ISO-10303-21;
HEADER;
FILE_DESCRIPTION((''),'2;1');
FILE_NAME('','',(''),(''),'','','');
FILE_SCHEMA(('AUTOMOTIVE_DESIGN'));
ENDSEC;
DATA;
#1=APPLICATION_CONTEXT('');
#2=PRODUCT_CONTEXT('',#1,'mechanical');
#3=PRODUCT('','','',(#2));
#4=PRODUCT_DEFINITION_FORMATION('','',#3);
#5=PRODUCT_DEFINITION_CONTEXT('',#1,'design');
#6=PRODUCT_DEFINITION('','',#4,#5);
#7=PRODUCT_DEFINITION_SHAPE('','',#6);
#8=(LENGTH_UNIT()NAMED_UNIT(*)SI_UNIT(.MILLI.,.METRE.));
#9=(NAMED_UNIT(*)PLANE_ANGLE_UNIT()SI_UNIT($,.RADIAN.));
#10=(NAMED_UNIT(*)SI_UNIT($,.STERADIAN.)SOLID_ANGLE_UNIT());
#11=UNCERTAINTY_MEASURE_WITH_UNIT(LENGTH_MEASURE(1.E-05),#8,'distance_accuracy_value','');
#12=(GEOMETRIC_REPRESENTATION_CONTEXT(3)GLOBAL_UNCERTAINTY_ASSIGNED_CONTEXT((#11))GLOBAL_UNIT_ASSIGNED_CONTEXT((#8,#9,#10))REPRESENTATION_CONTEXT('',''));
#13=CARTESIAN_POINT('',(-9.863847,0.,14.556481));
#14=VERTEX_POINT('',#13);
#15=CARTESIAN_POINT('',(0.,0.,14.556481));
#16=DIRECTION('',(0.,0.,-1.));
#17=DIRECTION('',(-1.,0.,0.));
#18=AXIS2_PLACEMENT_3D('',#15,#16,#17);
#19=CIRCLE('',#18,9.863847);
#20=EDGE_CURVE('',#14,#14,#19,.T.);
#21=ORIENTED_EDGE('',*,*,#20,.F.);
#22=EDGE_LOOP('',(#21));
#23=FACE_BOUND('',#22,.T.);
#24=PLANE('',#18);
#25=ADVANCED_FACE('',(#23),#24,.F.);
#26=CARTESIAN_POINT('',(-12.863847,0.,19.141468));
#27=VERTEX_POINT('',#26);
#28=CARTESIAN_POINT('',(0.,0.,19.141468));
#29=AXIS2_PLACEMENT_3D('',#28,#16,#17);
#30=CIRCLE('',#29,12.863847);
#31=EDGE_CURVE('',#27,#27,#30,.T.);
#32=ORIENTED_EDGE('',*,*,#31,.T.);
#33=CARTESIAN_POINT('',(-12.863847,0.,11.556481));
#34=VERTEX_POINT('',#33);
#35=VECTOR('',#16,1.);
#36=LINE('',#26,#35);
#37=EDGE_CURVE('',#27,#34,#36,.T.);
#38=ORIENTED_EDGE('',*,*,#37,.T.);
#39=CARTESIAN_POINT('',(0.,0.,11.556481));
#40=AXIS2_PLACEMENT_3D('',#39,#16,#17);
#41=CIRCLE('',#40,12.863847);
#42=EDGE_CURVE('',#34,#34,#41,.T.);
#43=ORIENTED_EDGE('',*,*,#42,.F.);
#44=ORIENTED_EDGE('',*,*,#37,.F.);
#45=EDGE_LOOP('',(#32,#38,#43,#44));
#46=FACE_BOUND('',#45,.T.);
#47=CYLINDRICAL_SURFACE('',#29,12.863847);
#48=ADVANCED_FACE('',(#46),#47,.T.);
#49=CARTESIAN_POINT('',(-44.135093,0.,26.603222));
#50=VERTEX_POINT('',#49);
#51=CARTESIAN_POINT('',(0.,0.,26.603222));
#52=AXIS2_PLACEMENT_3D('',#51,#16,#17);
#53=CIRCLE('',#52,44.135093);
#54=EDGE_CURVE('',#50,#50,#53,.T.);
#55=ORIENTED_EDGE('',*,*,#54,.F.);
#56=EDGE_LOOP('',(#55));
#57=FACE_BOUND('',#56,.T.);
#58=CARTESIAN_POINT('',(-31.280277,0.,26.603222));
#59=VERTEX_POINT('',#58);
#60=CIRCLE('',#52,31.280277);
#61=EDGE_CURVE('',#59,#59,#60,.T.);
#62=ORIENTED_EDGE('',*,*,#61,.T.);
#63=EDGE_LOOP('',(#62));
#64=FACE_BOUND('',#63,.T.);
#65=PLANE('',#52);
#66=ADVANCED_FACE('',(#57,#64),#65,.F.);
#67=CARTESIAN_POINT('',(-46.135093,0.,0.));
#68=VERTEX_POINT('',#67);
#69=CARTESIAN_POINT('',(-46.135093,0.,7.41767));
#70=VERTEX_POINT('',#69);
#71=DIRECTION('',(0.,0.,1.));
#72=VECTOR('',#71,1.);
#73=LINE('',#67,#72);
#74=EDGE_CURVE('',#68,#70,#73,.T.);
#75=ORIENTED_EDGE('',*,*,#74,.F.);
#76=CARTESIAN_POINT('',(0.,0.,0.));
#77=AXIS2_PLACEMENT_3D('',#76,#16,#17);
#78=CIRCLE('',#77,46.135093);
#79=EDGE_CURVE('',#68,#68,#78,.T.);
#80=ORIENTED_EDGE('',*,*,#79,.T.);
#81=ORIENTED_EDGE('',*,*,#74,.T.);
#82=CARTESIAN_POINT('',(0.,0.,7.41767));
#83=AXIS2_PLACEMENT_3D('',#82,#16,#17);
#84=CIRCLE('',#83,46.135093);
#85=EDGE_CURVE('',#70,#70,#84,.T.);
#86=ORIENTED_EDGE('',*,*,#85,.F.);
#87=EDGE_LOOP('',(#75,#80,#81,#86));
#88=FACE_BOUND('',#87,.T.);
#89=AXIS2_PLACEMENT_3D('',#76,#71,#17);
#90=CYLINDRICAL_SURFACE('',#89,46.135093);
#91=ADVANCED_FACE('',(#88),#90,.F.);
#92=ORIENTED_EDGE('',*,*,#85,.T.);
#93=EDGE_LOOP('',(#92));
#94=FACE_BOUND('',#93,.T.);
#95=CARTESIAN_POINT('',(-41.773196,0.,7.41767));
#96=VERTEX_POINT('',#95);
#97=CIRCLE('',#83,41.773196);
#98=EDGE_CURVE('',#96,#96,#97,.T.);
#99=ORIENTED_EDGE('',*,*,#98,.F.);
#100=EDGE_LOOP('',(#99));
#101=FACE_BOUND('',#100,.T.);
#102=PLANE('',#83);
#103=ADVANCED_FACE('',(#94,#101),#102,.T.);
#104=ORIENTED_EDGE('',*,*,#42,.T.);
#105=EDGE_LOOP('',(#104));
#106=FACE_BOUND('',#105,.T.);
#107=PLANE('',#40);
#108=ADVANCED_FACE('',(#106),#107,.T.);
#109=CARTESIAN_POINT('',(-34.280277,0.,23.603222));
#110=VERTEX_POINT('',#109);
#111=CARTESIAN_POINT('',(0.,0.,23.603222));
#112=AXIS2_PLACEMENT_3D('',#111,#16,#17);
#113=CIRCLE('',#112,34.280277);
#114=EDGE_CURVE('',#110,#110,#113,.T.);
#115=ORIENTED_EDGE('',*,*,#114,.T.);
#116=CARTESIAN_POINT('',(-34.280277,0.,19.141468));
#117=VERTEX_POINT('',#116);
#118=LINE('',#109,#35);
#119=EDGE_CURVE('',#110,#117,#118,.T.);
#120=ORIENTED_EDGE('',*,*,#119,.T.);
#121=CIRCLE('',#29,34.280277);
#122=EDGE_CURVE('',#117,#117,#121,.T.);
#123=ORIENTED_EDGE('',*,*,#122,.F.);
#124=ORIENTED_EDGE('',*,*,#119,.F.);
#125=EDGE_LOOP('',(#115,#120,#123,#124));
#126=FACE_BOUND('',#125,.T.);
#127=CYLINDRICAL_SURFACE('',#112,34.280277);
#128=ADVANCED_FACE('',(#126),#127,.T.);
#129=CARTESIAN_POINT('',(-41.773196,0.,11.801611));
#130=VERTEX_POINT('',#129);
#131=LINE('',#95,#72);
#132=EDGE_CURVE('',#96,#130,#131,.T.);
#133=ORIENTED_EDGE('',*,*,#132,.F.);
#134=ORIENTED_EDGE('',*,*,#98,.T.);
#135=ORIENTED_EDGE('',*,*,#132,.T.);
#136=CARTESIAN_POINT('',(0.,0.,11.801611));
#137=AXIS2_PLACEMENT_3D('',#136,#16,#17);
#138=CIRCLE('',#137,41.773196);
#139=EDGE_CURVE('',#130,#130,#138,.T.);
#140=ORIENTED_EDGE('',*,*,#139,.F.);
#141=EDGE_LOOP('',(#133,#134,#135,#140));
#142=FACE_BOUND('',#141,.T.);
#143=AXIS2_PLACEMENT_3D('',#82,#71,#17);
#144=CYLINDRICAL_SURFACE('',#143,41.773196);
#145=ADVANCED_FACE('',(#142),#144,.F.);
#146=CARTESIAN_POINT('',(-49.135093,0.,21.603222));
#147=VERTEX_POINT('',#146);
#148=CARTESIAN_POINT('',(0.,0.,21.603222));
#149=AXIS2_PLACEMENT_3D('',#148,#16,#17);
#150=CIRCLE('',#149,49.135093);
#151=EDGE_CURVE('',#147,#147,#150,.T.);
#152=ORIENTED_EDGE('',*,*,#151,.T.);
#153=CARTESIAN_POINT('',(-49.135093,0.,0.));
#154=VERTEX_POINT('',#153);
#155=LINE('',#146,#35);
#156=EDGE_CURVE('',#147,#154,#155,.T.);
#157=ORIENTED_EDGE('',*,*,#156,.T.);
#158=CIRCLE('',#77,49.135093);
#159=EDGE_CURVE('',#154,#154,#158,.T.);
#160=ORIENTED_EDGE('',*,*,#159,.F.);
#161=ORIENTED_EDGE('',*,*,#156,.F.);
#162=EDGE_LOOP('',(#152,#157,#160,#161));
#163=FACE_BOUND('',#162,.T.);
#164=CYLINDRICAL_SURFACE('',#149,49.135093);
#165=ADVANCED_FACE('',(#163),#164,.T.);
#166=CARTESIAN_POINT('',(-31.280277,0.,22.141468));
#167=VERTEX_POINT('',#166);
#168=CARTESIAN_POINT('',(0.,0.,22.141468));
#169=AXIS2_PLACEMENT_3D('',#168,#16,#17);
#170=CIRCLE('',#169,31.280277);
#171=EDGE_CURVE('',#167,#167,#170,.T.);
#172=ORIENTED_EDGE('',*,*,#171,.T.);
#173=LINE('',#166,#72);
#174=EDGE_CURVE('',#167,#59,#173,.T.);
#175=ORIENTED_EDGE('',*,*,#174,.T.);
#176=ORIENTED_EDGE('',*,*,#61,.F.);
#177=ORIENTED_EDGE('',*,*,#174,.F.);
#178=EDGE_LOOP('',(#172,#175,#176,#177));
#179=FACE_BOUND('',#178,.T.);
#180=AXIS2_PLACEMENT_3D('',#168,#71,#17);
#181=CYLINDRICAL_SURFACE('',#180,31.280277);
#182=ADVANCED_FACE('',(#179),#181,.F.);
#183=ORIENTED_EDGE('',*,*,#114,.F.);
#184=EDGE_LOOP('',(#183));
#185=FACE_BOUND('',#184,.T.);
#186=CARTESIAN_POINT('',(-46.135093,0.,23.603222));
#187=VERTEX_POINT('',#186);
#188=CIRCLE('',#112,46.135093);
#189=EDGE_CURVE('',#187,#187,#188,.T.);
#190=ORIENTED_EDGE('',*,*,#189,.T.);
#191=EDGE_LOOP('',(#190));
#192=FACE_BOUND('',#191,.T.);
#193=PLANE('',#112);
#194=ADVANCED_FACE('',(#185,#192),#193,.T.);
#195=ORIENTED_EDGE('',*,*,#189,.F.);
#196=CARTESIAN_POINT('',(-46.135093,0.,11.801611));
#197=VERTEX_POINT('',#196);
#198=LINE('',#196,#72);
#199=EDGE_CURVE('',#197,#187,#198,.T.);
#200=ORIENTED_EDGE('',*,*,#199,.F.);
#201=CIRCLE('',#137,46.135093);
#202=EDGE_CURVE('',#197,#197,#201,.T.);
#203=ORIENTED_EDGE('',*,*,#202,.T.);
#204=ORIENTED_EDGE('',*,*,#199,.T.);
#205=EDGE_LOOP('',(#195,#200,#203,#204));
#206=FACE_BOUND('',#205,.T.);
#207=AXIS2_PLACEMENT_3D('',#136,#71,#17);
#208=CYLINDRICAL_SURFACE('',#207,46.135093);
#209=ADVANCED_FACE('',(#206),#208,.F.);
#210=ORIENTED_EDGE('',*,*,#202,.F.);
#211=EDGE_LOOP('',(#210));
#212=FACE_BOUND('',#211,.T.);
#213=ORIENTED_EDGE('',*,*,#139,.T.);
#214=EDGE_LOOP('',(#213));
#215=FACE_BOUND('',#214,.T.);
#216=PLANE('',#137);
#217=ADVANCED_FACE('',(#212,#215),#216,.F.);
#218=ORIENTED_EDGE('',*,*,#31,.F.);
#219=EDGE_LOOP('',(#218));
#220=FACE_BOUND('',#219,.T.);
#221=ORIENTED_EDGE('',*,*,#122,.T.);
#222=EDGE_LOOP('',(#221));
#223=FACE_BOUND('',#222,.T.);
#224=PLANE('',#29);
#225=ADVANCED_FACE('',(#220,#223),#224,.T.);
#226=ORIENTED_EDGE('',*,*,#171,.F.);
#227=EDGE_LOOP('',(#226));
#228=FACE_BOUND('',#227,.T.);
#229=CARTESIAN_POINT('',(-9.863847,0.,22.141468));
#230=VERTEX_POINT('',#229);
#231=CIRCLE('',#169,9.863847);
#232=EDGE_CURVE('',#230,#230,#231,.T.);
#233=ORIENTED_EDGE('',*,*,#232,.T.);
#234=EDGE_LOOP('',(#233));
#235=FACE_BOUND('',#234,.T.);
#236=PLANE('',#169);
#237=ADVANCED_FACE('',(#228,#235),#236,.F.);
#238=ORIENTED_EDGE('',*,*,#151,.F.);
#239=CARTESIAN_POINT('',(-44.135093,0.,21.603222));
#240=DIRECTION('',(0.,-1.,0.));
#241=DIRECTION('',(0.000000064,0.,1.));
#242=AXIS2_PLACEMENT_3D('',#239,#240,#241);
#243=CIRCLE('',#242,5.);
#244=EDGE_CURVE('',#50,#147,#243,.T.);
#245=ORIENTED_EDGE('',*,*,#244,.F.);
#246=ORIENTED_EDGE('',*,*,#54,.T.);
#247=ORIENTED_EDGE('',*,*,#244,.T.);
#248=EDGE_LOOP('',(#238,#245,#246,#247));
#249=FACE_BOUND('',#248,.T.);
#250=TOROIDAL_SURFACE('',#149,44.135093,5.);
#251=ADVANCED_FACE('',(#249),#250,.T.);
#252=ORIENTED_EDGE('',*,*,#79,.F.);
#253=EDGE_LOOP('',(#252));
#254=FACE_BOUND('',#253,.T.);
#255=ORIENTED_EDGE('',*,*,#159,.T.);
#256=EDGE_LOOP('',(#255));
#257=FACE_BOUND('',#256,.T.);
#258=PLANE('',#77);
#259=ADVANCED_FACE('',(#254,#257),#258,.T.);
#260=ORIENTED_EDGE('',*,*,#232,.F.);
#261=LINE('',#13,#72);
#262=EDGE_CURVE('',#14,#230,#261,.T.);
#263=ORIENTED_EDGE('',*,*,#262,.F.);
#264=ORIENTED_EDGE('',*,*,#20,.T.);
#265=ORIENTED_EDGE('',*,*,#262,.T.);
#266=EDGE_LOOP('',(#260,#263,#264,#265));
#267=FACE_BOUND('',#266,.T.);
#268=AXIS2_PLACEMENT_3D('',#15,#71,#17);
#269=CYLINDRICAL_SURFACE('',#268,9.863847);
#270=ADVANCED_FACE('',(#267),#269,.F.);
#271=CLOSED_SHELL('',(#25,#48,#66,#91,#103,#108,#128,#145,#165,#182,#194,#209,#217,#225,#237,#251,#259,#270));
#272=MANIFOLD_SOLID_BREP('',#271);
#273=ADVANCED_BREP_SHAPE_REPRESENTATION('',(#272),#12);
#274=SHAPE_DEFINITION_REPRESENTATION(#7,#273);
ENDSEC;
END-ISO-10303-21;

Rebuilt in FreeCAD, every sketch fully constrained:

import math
import FreeCAD as App
import Part
import Sketcher

V = App.Vector
Q = App.Units.Quantity

doc = App.newDocument("Part")
body = doc.addObject("PartDesign::Body", "Body")

# Sketch on XZ plane
sketch1 = body.newObject("Sketcher::SketchObject", "Sketch")
sketch1.AttachmentSupport = (doc.getObject("XZ_Plane"), [""])
sketch1.MapMode = "FlatFace"
sketch1.addGeometry([
    Part.LineSegment(V(-49.1, 21.6, 0), V(-49.1, 0, 0)),  # 0
    Part.LineSegment(V(-49.1, 0, 0), V(-46.1, 0, 0)),  # 1
    Part.LineSegment(V(-46.1, 0, 0), V(-46.1, 7.4, 0)),  # 2
    Part.LineSegment(V(-46.1, 7.4, 0), V(-41.8, 7.4, 0)),  # 3
    Part.LineSegment(V(-41.8, 7.4, 0), V(-41.8, 11.8, 0)),  # 4
    Part.LineSegment(V(-41.8, 11.8, 0), V(-46.1, 11.8, 0)),  # 5
    Part.LineSegment(V(-46.1, 11.8, 0), V(-46.1, 23.6, 0)),  # 6
    Part.LineSegment(V(-46.1, 23.6, 0), V(-34.3, 23.6, 0)),  # 7
    Part.LineSegment(V(-34.3, 23.6, 0), V(-34.3, 19.1, 0)),  # 8
    Part.LineSegment(V(-34.3, 19.1, 0), V(-12.9, 19.1, 0)),  # 9
    Part.LineSegment(V(-12.9, 19.1, 0), V(-12.9, 11.6, 0)),  # 10
    Part.LineSegment(V(-12.9, 11.6, 0), V(0, 11.6, 0)),  # 11
    Part.LineSegment(V(0, 11.6, 0), V(0, 14.6, 0)),  # 12
    Part.LineSegment(V(0, 14.6, 0), V(-9.9, 14.6, 0)),  # 13
    Part.LineSegment(V(-9.9, 14.6, 0), V(-9.9, 22.1, 0)),  # 14
    Part.LineSegment(V(-9.9, 22.1, 0), V(-31.3, 22.1, 0)),  # 15
    Part.LineSegment(V(-31.3, 22.1, 0), V(-31.3, 26.6, 0)),  # 16
    Part.LineSegment(V(-31.3, 26.6, 0), V(-44.1, 26.6, 0)),  # 17
    Part.ArcOfCircle(Part.Circle(V(-44.1, 21.6, 0), V(0, 0, 1), 5), math.radians(90), math.radians(180)),  # 18
], False)
sketch1.addConstraint([
    Sketcher.Constraint("Coincident", 0, 2, 1, 1),
    Sketcher.Constraint("Coincident", 1, 2, 2, 1),
    Sketcher.Constraint("Coincident", 2, 2, 3, 1),
    Sketcher.Constraint("Coincident", 3, 2, 4, 1),
    Sketcher.Constraint("Coincident", 4, 2, 5, 1),
    Sketcher.Constraint("Coincident", 5, 2, 6, 1),
    Sketcher.Constraint("Coincident", 6, 2, 7, 1),
    Sketcher.Constraint("Coincident", 7, 2, 8, 1),
    Sketcher.Constraint("Coincident", 8, 2, 9, 1),
    Sketcher.Constraint("Coincident", 9, 2, 10, 1),
    Sketcher.Constraint("Coincident", 10, 2, 11, 1),
    Sketcher.Constraint("Coincident", 11, 2, 12, 1),
    Sketcher.Constraint("Coincident", 12, 2, 13, 1),
    Sketcher.Constraint("Coincident", 13, 2, 14, 1),
    Sketcher.Constraint("Coincident", 14, 2, 15, 1),
    Sketcher.Constraint("Coincident", 15, 2, 16, 1),
    Sketcher.Constraint("Coincident", 16, 2, 17, 1),
    Sketcher.Constraint("Tangent", 17, 2, 18, 1),
    Sketcher.Constraint("Tangent", 18, 2, 0, 1),
    Sketcher.Constraint("Vertical", 0),
    Sketcher.Constraint("Horizontal", 1),
    Sketcher.Constraint("Vertical", 2),
    Sketcher.Constraint("Horizontal", 3),
    Sketcher.Constraint("Vertical", 4),
    Sketcher.Constraint("Horizontal", 5),
    Sketcher.Constraint("Vertical", 6),
    Sketcher.Constraint("Horizontal", 7),
    Sketcher.Constraint("Vertical", 8),
    Sketcher.Constraint("Horizontal", 9),
    Sketcher.Constraint("Vertical", 10),
    Sketcher.Constraint("Horizontal", 11),
    Sketcher.Constraint("Vertical", 12),
    Sketcher.Constraint("Horizontal", 13),
    Sketcher.Constraint("Vertical", 14),
    Sketcher.Constraint("Horizontal", 15),
    Sketcher.Constraint("Vertical", 16),
    Sketcher.Constraint("Horizontal", 17),
    Sketcher.Constraint("PointOnObject", 0, 2, -1),
    Sketcher.Constraint("PointOnObject", 11, 2, -2),
    Sketcher.Constraint("Vertical", 2, 2, 5, 2),
    Sketcher.Constraint("Equal", 9, 15),
    Sketcher.Constraint("Equal", 1, 12),
    Sketcher.Constraint("Equal", 10, 14),
    Sketcher.Constraint("Equal", 8, 16),
    Sketcher.Constraint("Radius", 18, Q("5 mm")),
    Sketcher.Constraint("DistanceX", 1, 1, 1, 2, Q("3 mm")),
    Sketcher.Constraint("DistanceX", 10, 2, 13, 2, Q("3 mm")),
    Sketcher.Constraint("DistanceX", 9, 1, 9, 2, Q("21.41643 mm")),
    Sketcher.Constraint("DistanceY", 0, 2, 0, 1, Q("21.603222 mm")),
    Sketcher.Constraint("DistanceY", 2, 1, 2, 2, Q("7.41767 mm")),
    Sketcher.Constraint("DistanceY", 4, 1, 4, 2, Q("4.383941 mm")),
    Sketcher.Constraint("DistanceX", 3, 1, 3, 2, Q("4.361897 mm")),
    Sketcher.Constraint("DistanceX", 7, 1, 7, 2, Q("11.854816 mm")),
    Sketcher.Constraint("DistanceX", 11, 1, 11, 2, Q("12.863847 mm")),
    Sketcher.Constraint("DistanceY", 8, 2, 8, 1, Q("4.461754 mm")),
    Sketcher.Constraint("DistanceY", 10, 2, 10, 1, Q("7.584987 mm")),
])
revolution = body.newObject("PartDesign::Revolution", "Revolution")
revolution.Profile = sketch1
revolution.ReferenceAxis = (sketch1, ["V_Axis"])
revolution.Angle = 360

doc.recompute()
